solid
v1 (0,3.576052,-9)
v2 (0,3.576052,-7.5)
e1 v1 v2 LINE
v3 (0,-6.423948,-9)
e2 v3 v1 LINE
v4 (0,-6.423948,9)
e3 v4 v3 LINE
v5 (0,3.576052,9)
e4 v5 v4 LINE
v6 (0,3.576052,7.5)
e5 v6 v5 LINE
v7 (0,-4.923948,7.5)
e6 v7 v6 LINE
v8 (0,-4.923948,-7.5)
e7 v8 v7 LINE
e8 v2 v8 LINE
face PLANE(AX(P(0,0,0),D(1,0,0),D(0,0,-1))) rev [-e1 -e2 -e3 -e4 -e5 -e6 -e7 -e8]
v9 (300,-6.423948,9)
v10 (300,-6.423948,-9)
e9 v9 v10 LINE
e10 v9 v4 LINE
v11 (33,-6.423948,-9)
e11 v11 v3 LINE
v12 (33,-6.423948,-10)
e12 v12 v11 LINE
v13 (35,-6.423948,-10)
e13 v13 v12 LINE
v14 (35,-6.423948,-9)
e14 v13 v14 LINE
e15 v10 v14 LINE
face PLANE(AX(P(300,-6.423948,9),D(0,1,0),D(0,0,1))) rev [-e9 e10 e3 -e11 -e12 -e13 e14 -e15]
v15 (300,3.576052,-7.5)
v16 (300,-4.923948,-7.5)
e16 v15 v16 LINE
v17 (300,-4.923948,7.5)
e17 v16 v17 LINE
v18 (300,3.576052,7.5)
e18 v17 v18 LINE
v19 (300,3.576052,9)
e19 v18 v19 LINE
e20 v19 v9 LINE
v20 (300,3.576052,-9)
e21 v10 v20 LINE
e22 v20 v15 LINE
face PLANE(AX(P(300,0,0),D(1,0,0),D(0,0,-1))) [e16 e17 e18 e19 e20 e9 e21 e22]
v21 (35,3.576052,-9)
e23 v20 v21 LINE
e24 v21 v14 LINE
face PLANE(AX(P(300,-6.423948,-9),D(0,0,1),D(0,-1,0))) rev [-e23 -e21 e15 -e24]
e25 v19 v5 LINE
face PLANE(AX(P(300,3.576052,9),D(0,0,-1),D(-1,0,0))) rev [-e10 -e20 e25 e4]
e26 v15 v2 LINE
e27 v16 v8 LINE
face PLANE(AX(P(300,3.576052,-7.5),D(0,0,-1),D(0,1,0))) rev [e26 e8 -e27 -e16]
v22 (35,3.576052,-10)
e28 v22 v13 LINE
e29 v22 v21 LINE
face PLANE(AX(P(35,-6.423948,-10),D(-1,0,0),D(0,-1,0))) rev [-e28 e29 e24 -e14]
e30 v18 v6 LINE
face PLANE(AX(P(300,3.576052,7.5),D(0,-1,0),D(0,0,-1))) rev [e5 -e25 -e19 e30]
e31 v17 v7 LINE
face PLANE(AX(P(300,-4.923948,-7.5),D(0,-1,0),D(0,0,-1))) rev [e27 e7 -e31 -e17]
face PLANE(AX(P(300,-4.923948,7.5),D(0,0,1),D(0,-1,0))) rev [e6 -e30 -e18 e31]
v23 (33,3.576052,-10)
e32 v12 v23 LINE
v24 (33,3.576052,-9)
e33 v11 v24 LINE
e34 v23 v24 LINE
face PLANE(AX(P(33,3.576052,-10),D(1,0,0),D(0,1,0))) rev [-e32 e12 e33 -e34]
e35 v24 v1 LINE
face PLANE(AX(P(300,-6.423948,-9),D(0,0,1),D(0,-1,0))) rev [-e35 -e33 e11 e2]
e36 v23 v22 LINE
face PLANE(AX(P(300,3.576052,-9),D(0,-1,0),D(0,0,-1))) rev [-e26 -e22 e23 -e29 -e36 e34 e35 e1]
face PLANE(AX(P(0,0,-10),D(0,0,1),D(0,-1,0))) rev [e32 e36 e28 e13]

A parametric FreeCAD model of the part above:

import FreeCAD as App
import Part
import Sketcher

V = App.Vector

doc = App.newDocument("Part")
body = doc.addObject("PartDesign::Body", "Body")

# Sketch on YZ plane
sketch1 = doc.addObject("Sketcher::SketchObject", "Sketch")
body.addObject(sketch1)
sketch1.AttachmentSupport = (doc.YZ_Plane, [""])
sketch1.MapMode = "FlatFace"
sketch1.addGeometry(Part.LineSegment(V(-6.4, 9, 0), V(-6.4, -9, 0)), False)
sketch1.addGeometry(Part.LineSegment(V(-6.4, -9, 0), V(3.6, -9, 0)), False)
sketch1.addGeometry(Part.LineSegment(V(3.6, -9, 0), V(3.6, -7.5, 0)), False)
sketch1.addGeometry(Part.LineSegment(V(3.6, -7.5, 0), V(-4.9, -7.5, 0)), False)
sketch1.addGeometry(Part.LineSegment(V(-4.9, -7.5, 0), V(-4.9, 7.5, 0)), False)
sketch1.addGeometry(Part.LineSegment(V(-4.9, 7.5, 0), V(3.6, 7.5, 0)), False)
sketch1.addGeometry(Part.LineSegment(V(3.6, 7.5, 0), V(3.6, 9, 0)), False)
sketch1.addGeometry(Part.LineSegment(V(3.6, 9, 0), V(-6.4, 9, 0)), False)
sketch1.addConstraint(Sketcher.Constraint("Coincident", 0, 2, 1, 1))
sketch1.addConstraint(Sketcher.Constraint("Coincident", 1, 2, 2, 1))
sketch1.addConstraint(Sketcher.Constraint("Coincident", 2, 2, 3, 1))
sketch1.addConstraint(Sketcher.Constraint("Coincident", 3, 2, 4, 1))
sketch1.addConstraint(Sketcher.Constraint("Coincident", 4, 2, 5, 1))
sketch1.addConstraint(Sketcher.Constraint("Coincident", 5, 2, 6, 1))
sketch1.addConstraint(Sketcher.Constraint("Coincident", 6, 2, 7, 1))
sketch1.addConstraint(Sketcher.Constraint("Coincident", 7, 2, 0, 1))
sketch1.addConstraint(Sketcher.Constraint("Vertical", 0))
sketch1.addConstraint(Sketcher.Constraint("Horizontal", 1))
sketch1.addConstraint(Sketcher.Constraint("Vertical", 2))
sketch1.addConstraint(Sketcher.Constraint("Horizontal", 3))
sketch1.addConstraint(Sketcher.Constraint("Vertical", 4))
sketch1.addConstraint(Sketcher.Constraint("Horizontal", 5))
sketch1.addConstraint(Sketcher.Constraint("Vertical", 6))
sketch1.addConstraint(Sketcher.Constraint("Horizontal", 7))
sketch1.addConstraint(Sketcher.Constraint("Symmetric", 2, 2, 5, 2, -1))
sketch1.addConstraint(Sketcher.Constraint("Equal", 2, 6))
sketch1.addConstraint(Sketcher.Constraint("DistanceX", 1, 1, 1, 2, 10.0))
sketch1.addConstraint(Sketcher.Constraint("DistanceY", 0, 2, 0, 1, 18.0))
sketch1.addConstraint(Sketcher.Constraint("DistanceY", 4, 1, 4, 2, 15.0))
sketch1.addConstraint(Sketcher.Constraint("DistanceX", 3, 2, 3, 1, 8.5))
sketch1.addConstraint(Sketcher.Constraint("DistanceX", 0, 2, -1, 1, 6.423948))
pad1 = doc.addObject("PartDesign::Pad", "Pad")
body.addObject(pad1)
pad1.Profile = sketch1
pad1.Length = 300

# Sketch on XY plane
sketch2 = doc.addObject("Sketcher::SketchObject", "Sketch001")
body.addObject(sketch2)
sketch2.AttachmentSupport = (doc.XY_Plane, [""])
sketch2.MapMode = "FlatFace"
sketch2.AttachmentOffset = App.Placement(V(0, 0, -9), App.Rotation())
sketch2.addGeometry(Part.LineSegment(V(35, 3.6, 0), V(35, -6.4, 0)), False)
sketch2.addGeometry(Part.LineSegment(V(35, -6.4, 0), V(33, -6.4, 0)), False)
sketch2.addGeometry(Part.LineSegment(V(33, -6.4, 0), V(33, 3.6, 0)), False)
sketch2.addGeometry(Part.LineSegment(V(33, 3.6, 0), V(35, 3.6, 0)), False)
sketch2.addConstraint(Sketcher.Constraint("Coincident", 0, 2, 1, 1))
sketch2.addConstraint(Sketcher.Constraint("Coincident", 1, 2, 2, 1))
sketch2.addConstraint(Sketcher.Constraint("Coincident", 2, 2, 3, 1))
sketch2.addConstraint(Sketcher.Constraint("Coincident", 3, 2, 0, 1))
sketch2.addConstraint(Sketcher.Constraint("Vertical", 0))
sketch2.addConstraint(Sketcher.Constraint("Horizontal", 1))
sketch2.addConstraint(Sketcher.Constraint("Vertical", 2))
sketch2.addConstraint(Sketcher.Constraint("Horizontal", 3))
sketch2.addConstraint(Sketcher.Constraint("DistanceX", 1, 2, 1, 1, 2.0))
sketch2.addConstraint(Sketcher.Constraint("DistanceY", 0, 2, 0, 1, 10.0))
sketch2.addConstraint(Sketcher.Constraint("DistanceX", -1, 1, 0, 2, 35.0))
sketch2.addConstraint(Sketcher.Constraint("DistanceY", 0, 2, -1, 1, 6.423948))
pad2 = doc.addObject("PartDesign::Pad", "Pad001")
body.addObject(pad2)
pad2.Profile = sketch2
pad2.Length = 1
pad2.Reversed = True

doc.recompute()
